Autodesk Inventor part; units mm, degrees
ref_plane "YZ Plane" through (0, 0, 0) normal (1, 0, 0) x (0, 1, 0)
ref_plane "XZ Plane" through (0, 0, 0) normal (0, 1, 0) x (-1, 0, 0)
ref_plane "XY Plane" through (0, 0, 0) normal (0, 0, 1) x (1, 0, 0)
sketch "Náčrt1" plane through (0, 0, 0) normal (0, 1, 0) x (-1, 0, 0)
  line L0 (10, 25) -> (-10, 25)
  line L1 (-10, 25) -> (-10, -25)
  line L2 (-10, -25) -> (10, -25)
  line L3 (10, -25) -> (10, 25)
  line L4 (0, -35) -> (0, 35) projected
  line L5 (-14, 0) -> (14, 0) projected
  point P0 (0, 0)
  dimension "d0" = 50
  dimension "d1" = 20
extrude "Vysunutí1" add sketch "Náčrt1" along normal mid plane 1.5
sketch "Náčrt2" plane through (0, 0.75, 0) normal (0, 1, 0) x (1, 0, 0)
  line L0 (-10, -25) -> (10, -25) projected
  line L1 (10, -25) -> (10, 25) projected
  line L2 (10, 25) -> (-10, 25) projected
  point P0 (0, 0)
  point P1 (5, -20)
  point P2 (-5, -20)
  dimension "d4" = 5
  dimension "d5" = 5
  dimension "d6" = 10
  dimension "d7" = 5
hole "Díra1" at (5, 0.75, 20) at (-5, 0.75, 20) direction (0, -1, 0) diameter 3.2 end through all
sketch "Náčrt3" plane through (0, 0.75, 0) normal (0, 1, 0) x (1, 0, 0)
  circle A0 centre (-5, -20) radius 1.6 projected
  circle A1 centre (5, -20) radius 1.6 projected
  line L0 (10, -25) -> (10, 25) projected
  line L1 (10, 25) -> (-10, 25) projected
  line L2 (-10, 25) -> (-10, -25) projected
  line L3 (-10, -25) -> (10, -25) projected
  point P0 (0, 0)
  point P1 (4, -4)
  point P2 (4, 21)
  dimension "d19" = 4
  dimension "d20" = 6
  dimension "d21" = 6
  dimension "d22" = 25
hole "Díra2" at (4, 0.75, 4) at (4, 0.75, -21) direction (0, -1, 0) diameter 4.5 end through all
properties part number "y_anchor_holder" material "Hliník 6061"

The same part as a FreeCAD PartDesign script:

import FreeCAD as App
import Part
import Sketcher
from FreeCAD import Vector
Q = App.Units.Quantity

doc = App.newDocument("Part")
body = doc.addObject("PartDesign::Body", "Body")

# Sketch on XZ plane
sketch1 = body.newObject("Sketcher::SketchObject", "Sketch")
sketch1.AttachmentSupport = (doc.getObject("XZ_Plane"), [""])
sketch1.MapMode = "FlatFace"
sketch1.addGeometry([
    Part.LineSegment(Vector(-10, 25, 0), Vector(10, 25, 0)),
    Part.LineSegment(Vector(10, 25, 0), Vector(10, -25, 0)),
    Part.LineSegment(Vector(10, -25, 0), Vector(-10, -25, 0)),
    Part.LineSegment(Vector(-10, -25, 0), Vector(-10, 25, 0)),
], False)
sketch1.addConstraint([
    Sketcher.Constraint("Coincident", 0, 2, 1, 1),
    Sketcher.Constraint("Coincident", 1, 2, 2, 1),
    Sketcher.Constraint("Coincident", 2, 2, 3, 1),
    Sketcher.Constraint("Coincident", 3, 2, 0, 1),
    Sketcher.Constraint("Horizontal", 0),
    Sketcher.Constraint("Vertical", 1),
    Sketcher.Constraint("Horizontal", 2),
    Sketcher.Constraint("Vertical", 3),
    Sketcher.Constraint("Symmetric", 0, 2, 2, 2, -1, 1),
    Sketcher.Constraint("DistanceX", 0, 1, 0, 2, Q("20 mm")),
    Sketcher.Constraint("DistanceY", 1, 2, 1, 1, Q("50 mm")),
])
pad1 = body.newObject("PartDesign::Pad", "Pad")
pad1.Profile = sketch1
pad1.Length = 1.5
pad1.Midplane = True

# Sketch on XZ plane
sketch2 = body.newObject("Sketcher::SketchObject", "Sketch001")
sketch2.AttachmentSupport = (doc.getObject("XZ_Plane"), [""])
sketch2.MapMode = "FlatFace"
sketch2.AttachmentOffset = App.Placement(Vector(0, 0, -0.75), App.Rotation())
sketch2.addGeometry([
    Part.Circle(Vector(5, 20, 0), Vector(0, 0, 1), 1.6),
    Part.Circle(Vector(-5, 20, 0), Vector(0, 0, 1), 1.6),
], False)
sketch2.addConstraint([
    Sketcher.Constraint("Equal", 0, 1),
    Sketcher.Constraint("Symmetric", 0, 3, 1, 3, -2),
    Sketcher.Constraint("Diameter", 0, Q("3.2 mm")),
    Sketcher.Constraint("DistanceX", -1, 1, 0, 3, Q("5 mm")),
    Sketcher.Constraint("DistanceY", -1, 1, 0, 3, Q("20 mm")),
])
doc.recompute()
hole = body.newObject("PartDesign::Hole", "Hole")
hole.Profile = sketch2
hole.ThreadType = "None"
hole.Diameter = 3.2
hole.DepthType = "ThroughAll"
hole.Reversed = True

# Sketch on XZ plane
sketch3 = body.newObject("Sketcher::SketchObject", "Sketch002")
sketch3.AttachmentSupport = (doc.getObject("XZ_Plane"), [""])
sketch3.MapMode = "FlatFace"
sketch3.AttachmentOffset = App.Placement(Vector(0, 0, -0.75), App.Rotation())
sketch3.addGeometry([
    Part.Circle(Vector(4, 4, 0), Vector(0, 0, 1), 2.2),
    Part.Circle(Vector(4, -21, 0), Vector(0, 0, 1), 2.2),
], False)
sketch3.addConstraint([
    Sketcher.Constraint("Equal", 0, 1),
    Sketcher.Constraint("Vertical", 0, 3, 1, 3),
    Sketcher.Constraint("Diameter", 0, Q("4.5 mm")),
    Sketcher.Constraint("DistanceX", -1, 1, 0, 3, Q("4 mm")),
    Sketcher.Constraint("DistanceY", -1, 1, 0, 3, Q("4 mm")),
    Sketcher.Constraint("DistanceY", 1, 3, -1, 1, Q("21 mm")),
])
doc.recompute()
hole2 = body.newObject("PartDesign::Hole", "Hole001")
hole2.Profile = sketch3
hole2.ThreadType = "None"
hole2.Diameter = 4.5
hole2.DepthType = "ThroughAll"
hole2.Reversed = True

doc.recompute()
